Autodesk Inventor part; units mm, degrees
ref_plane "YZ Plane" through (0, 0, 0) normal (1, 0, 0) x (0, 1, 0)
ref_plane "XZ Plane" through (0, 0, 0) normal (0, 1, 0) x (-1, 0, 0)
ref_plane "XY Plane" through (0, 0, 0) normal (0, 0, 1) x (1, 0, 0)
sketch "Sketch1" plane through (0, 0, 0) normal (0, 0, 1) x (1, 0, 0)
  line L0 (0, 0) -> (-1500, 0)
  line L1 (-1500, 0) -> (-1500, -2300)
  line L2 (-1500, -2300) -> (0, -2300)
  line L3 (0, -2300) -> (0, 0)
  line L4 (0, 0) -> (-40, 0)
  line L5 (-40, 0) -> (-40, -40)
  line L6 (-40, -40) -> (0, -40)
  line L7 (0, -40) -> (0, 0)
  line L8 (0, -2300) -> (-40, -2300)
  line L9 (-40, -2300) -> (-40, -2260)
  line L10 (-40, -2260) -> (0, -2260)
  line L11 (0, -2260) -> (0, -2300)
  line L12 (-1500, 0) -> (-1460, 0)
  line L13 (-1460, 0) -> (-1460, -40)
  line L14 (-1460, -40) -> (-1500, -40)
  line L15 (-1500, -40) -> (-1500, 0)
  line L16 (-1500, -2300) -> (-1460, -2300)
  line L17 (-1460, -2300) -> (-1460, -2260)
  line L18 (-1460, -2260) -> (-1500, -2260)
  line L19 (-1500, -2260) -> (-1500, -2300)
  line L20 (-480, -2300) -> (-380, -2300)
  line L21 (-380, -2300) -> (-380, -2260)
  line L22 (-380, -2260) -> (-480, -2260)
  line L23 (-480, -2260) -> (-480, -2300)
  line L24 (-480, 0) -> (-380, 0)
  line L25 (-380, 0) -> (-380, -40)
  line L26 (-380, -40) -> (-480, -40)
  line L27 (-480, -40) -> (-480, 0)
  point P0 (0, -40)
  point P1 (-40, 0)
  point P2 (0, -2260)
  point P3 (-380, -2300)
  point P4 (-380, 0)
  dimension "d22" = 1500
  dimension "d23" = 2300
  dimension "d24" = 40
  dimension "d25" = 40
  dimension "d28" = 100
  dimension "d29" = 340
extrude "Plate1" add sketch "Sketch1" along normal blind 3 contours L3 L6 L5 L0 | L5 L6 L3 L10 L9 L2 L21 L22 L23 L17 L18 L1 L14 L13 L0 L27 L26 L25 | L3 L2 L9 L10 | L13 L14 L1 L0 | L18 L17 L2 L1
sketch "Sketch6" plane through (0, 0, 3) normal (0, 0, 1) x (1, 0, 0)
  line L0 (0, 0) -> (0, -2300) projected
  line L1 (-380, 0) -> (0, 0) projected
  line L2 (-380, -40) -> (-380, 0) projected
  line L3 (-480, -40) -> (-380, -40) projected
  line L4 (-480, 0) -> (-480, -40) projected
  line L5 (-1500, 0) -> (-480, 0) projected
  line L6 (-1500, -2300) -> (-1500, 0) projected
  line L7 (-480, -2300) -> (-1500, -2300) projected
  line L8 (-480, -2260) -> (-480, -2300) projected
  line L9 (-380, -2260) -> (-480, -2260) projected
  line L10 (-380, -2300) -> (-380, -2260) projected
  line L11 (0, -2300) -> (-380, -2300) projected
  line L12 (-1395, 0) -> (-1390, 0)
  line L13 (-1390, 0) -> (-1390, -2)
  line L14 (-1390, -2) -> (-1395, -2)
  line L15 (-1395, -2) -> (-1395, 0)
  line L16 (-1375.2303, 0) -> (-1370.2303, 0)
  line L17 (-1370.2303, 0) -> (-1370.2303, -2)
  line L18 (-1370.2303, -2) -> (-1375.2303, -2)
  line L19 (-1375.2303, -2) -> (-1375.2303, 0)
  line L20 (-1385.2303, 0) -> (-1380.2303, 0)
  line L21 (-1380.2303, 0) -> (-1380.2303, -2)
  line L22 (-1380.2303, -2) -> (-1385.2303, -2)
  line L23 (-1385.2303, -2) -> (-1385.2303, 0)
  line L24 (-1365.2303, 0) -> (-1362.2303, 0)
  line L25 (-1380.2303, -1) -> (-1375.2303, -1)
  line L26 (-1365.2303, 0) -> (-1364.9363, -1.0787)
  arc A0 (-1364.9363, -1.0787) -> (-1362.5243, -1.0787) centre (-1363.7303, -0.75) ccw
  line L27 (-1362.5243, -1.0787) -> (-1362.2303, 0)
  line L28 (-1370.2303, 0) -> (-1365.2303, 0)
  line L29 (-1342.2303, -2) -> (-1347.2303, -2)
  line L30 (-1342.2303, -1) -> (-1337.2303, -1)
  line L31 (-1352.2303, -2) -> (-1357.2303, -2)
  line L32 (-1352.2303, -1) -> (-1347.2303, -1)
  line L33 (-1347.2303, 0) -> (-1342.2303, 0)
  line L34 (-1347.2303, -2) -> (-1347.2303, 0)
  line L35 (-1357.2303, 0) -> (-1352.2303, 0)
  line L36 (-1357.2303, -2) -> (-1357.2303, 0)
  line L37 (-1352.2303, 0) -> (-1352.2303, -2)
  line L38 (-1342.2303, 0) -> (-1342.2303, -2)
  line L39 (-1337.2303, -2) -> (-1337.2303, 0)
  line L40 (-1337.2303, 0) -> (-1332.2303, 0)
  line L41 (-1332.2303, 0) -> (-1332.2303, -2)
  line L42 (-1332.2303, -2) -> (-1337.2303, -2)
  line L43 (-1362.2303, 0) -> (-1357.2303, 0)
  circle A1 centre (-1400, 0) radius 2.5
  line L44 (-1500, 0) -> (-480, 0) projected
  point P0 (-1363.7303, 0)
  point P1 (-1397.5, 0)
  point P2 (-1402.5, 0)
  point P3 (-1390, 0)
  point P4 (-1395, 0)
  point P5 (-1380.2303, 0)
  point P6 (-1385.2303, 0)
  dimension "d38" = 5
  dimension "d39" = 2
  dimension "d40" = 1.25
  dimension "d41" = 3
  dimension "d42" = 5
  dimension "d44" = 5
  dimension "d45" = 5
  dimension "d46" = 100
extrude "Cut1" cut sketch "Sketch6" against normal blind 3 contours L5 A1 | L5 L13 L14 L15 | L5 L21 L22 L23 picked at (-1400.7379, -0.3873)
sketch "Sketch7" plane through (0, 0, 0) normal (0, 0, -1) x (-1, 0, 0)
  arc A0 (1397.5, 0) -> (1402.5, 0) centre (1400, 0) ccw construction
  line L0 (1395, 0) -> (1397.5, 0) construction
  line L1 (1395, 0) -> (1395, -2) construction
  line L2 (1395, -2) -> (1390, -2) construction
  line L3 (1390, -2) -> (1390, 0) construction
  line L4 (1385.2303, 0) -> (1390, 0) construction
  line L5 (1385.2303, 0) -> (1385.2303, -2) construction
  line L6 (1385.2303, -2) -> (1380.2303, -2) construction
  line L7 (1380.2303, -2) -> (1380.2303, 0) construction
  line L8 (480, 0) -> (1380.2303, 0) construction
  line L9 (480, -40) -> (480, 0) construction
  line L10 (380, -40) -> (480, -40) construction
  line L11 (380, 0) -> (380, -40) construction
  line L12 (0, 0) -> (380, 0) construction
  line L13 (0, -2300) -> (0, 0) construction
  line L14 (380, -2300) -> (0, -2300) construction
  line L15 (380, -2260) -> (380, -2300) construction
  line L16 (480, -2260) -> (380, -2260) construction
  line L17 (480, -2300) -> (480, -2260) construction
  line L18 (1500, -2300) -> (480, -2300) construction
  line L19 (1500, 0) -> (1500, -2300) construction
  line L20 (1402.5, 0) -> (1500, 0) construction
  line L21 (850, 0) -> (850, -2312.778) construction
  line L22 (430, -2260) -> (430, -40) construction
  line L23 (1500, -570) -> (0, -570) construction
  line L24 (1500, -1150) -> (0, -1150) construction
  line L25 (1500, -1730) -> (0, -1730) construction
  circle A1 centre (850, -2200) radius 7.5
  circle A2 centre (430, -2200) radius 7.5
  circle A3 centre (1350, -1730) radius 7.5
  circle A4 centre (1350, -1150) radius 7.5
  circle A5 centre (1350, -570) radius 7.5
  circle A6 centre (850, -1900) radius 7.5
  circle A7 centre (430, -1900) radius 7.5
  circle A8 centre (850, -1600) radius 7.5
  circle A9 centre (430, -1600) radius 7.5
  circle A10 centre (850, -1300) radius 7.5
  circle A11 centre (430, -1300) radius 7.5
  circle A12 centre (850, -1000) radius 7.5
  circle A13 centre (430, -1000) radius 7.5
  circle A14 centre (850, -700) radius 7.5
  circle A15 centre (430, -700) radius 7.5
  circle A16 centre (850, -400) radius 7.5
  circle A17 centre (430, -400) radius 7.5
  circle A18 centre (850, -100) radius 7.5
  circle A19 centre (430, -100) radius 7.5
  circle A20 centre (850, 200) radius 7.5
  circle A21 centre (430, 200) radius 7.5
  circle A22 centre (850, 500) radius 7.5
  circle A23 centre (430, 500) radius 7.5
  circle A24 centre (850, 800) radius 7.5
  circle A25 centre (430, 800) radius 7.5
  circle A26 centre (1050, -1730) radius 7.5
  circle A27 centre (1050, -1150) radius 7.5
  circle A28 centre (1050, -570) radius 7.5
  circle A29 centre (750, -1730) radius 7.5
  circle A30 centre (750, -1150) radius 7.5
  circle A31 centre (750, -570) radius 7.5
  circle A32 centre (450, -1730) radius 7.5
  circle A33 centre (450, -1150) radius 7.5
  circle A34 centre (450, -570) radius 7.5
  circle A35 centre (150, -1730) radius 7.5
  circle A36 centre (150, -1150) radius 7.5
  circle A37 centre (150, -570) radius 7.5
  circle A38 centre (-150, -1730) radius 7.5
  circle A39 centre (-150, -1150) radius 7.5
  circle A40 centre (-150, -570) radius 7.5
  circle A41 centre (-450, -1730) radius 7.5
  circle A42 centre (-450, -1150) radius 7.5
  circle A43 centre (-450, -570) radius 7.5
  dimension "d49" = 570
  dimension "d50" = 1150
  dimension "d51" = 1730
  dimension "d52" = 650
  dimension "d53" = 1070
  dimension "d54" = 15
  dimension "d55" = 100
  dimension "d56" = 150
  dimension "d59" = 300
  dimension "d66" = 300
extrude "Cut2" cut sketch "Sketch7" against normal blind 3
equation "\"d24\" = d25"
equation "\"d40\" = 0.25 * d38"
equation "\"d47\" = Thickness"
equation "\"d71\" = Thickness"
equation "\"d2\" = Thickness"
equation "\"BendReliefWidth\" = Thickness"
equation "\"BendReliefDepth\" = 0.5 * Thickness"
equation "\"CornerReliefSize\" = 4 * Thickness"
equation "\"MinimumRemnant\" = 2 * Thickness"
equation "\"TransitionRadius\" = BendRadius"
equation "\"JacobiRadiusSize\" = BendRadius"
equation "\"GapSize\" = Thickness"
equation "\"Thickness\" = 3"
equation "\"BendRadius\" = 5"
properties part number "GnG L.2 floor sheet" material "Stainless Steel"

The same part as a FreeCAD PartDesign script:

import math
import FreeCAD as App
import Part
import Sketcher
from FreeCAD import Vector


def add_polygon(sketch, points):
    """Adds a closed chain of lines whose ends are joined by coincident constraints."""
    first, n = sketch.GeometryCount, len(points)
    for a, b in zip(points, points[1:] + points[:1]):
        sketch.addGeometry(Part.LineSegment(App.Vector(*a, 0), App.Vector(*b, 0)), False)
    for i in range(n):
        sketch.addConstraint(Sketcher.Constraint("Coincident", first + i, 2, first + (i + 1) % n, 1))

doc = App.newDocument("Part")
body = doc.addObject("PartDesign::Body", "Body")

# Sketch on XY plane
sketch1 = body.newObject("Sketcher::SketchObject", "Sketch")
sketch1.AttachmentSupport = (doc.getObject("XY_Plane"), [""])
sketch1.MapMode = "FlatFace"
add_polygon(sketch1, [(0, 0), (-380, 0), (-380, -40), (-480, -40), (-480, 0), (-1500, 0), (-1500, -2300), (-480, -2300), (-480, -2260), (-380, -2260), (-380, -2300), (0, -2300)])  # lines 0-11
sketch1.addConstraint([
    Sketcher.Constraint("Horizontal", 0),
    Sketcher.Constraint("Vertical", 1),
    Sketcher.Constraint("Horizontal", 2),
    Sketcher.Constraint("Vertical", 3),
    Sketcher.Constraint("Horizontal", 4),
    Sketcher.Constraint("Vertical", 5),
    Sketcher.Constraint("Horizontal", 6),
    Sketcher.Constraint("Vertical", 7),
    Sketcher.Constraint("Horizontal", 8),
    Sketcher.Constraint("Vertical", 9),
    Sketcher.Constraint("Horizontal", 10),
    Sketcher.Constraint("Vertical", 11),
    Sketcher.Constraint("Coincident", 11, 2, -1, 1),
    Sketcher.Constraint("PointOnObject", 3, 2, -1),
    Sketcher.Constraint("Horizontal", 6, 2, 9, 2),
    Sketcher.Constraint("Vertical", 3, 2, 6, 2),
    Sketcher.Constraint("Vertical", 1, 2, 8, 2),
    Sketcher.Constraint("Equal", 3, 7),
    Sketcher.Constraint("DistanceX", 2, 2, 2, 1, 100.0),
    Sketcher.Constraint("DistanceY", 1, 2, 1, 1, 40.0),
    Sketcher.Constraint("DistanceY", 5, 2, 5, 1, 2300.0),
    Sketcher.Constraint("DistanceX", 4, 2, -1, 1, 1500.0),
    Sketcher.Constraint("DistanceX", 0, 2, 0, 1, 380.0),
])
pad1 = body.newObject("PartDesign::Pad", "Pad")
pad1.Profile = sketch1
pad1.Length = 3

# Sketch on XY plane
sketch2 = body.newObject("Sketcher::SketchObject", "Sketch001")
sketch2.AttachmentSupport = (doc.getObject("XY_Plane"), [""])
sketch2.MapMode = "FlatFace"
sketch2.AttachmentOffset = App.Placement(Vector(0, 0, 3), App.Rotation())
sketch2.addGeometry(Part.LineSegment(Vector(-1397.5, 0, 0), Vector(-1402.5, 0, 0)), False)  # 0
sketch2.addGeometry(Part.ArcOfCircle(Part.Circle(Vector(-1400, 0, 0), Vector(0, 0, 1), 2.5), math.radians(180), math.radians(360)), False)  # 1
add_polygon(sketch2, [(-1390, 0), (-1395, 0), (-1395, -2), (-1390, -2)])  # lines 2-5
add_polygon(sketch2, [(-1380.2, 0), (-1385.2, 0), (-1385.2, -2), (-1380.2, -2)])  # lines 6-9
sketch2.addConstraint([
    Sketcher.Constraint("Coincident", 0, 1, 1, 2),
    Sketcher.Constraint("Coincident", 1, 1, 0, 2),
    Sketcher.Constraint("Horizontal", 0),
    Sketcher.Constraint("Horizontal", 2),
    Sketcher.Constraint("Vertical", 3),
    Sketcher.Constraint("Horizontal", 4),
    Sketcher.Constraint("Vertical", 5),
    Sketcher.Constraint("Horizontal", 6),
    Sketcher.Constraint("Vertical", 7),
    Sketcher.Constraint("Horizontal", 8),
    Sketcher.Constraint("Vertical", 9),
    Sketcher.Constraint("PointOnObject", 1, 3, -1),
    Sketcher.Constraint("PointOnObject", 0, 1, -1),
    Sketcher.Constraint("PointOnObject", 2, 2, -1),
    Sketcher.Constraint("PointOnObject", 6, 2, -1),
    Sketcher.Constraint("Horizontal", 4, 2, 7, 2),
    Sketcher.Constraint("Equal", 0, 2),
    Sketcher.Constraint("Equal", 4, 6),
    Sketcher.Constraint("Radius", 1, 2.5),
    Sketcher.Constraint("DistanceY", 3, 2, 3, 1, 2.0),
    Sketcher.Constraint("DistanceX", 1, 3, 2, 2, 5.0),
    Sketcher.Constraint("DistanceX", 1, 3, -1, 1, 1400.0),
    Sketcher.Constraint("DistanceX", 6, 2, -1, 1, 1385.2303),
])
pocket1 = body.newObject("PartDesign::Pocket", "Pocket")
pocket1.Profile = sketch2
pocket1.Length = 3

# Sketch on XY plane
sketch3 = body.newObject("Sketcher::SketchObject", "Sketch002")
sketch3.AttachmentSupport = (doc.getObject("XY_Plane"), [""])
sketch3.MapMode = "FlatFace"
sketch3.addGeometry([
    Part.Circle(Vector(-850, -2200, 0), Vector(0, 0, 1), 8),  # 0
    Part.Circle(Vector(-430, -2200, 0), Vector(0, 0, 1), 8),  # 1
    Part.Circle(Vector(-1350, -1730, 0), Vector(0, 0, 1), 8),  # 2
    Part.Circle(Vector(-1350, -1150, 0), Vector(0, 0, 1), 8),  # 3
    Part.Circle(Vector(-1350, -570, 0), Vector(0, 0, 1), 8),  # 4
    Part.Circle(Vector(-850, -1900, 0), Vector(0, 0, 1), 8),  # 5
    Part.Circle(Vector(-430, -1900, 0), Vector(0, 0, 1), 8),  # 6
    Part.Circle(Vector(-850, -1600, 0), Vector(0, 0, 1), 8),  # 7
    Part.Circle(Vector(-430, -1600, 0), Vector(0, 0, 1), 8),  # 8
    Part.Circle(Vector(-850, -1300, 0), Vector(0, 0, 1), 8),  # 9
    Part.Circle(Vector(-430, -1300, 0), Vector(0, 0, 1), 8),  # 10
    Part.Circle(Vector(-850, -1000, 0), Vector(0, 0, 1), 8),  # 11
    Part.Circle(Vector(-430, -1000, 0), Vector(0, 0, 1), 8),  # 12
    Part.Circle(Vector(-850, -700, 0), Vector(0, 0, 1), 8),  # 13
    Part.Circle(Vector(-430, -700, 0), Vector(0, 0, 1), 8),  # 14
    Part.Circle(Vector(-850, -400, 0), Vector(0, 0, 1), 8),  # 15
    Part.Circle(Vector(-430, -400, 0), Vector(0, 0, 1), 8),  # 16
    Part.Circle(Vector(-850, -100, 0), Vector(0, 0, 1), 8),  # 17
    Part.Circle(Vector(-430, -100, 0), Vector(0, 0, 1), 8),  # 18
    Part.Circle(Vector(-850, 200, 0), Vector(0, 0, 1), 8),  # 19
    Part.Circle(Vector(-430, 200, 0), Vector(0, 0, 1), 8),  # 20
    Part.Circle(Vector(-850, 500, 0), Vector(0, 0, 1), 8),  # 21
    Part.Circle(Vector(-430, 500, 0), Vector(0, 0, 1), 8),  # 22
    Part.Circle(Vector(-850, 800, 0), Vector(0, 0, 1), 8),  # 23
    Part.Circle(Vector(-430, 800, 0), Vector(0, 0, 1), 8),  # 24
    Part.Circle(Vector(-1050, -1730, 0), Vector(0, 0, 1), 8),  # 25
    Part.Circle(Vector(-1050, -1150, 0), Vector(0, 0, 1), 8),  # 26
    Part.Circle(Vector(-1050, -570, 0), Vector(0, 0, 1), 8),  # 27
    Part.Circle(Vector(-750, -1730, 0), Vector(0, 0, 1), 8),  # 28
    Part.Circle(Vector(-750, -1150, 0), Vector(0, 0, 1), 8),  # 29
    Part.Circle(Vector(-750, -570, 0), Vector(0, 0, 1), 8),  # 30
    Part.Circle(Vector(-450, -1730, 0), Vector(0, 0, 1), 8),  # 31
    Part.Circle(Vector(-450, -1150, 0), Vector(0, 0, 1), 8),  # 32
    Part.Circle(Vector(-450, -570, 0), Vector(0, 0, 1), 8),  # 33
    Part.Circle(Vector(-150, -1730, 0), Vector(0, 0, 1), 8),  # 34
    Part.Circle(Vector(-150, -1150, 0), Vector(0, 0, 1), 8),  # 35
    Part.Circle(Vector(-150, -570, 0), Vector(0, 0, 1), 8),  # 36
    Part.Circle(Vector(150, -1730, 0), Vector(0, 0, 1), 8),  # 37
    Part.Circle(Vector(150, -1150, 0), Vector(0, 0, 1), 8),  # 38
    Part.Circle(Vector(150, -570, 0), Vector(0, 0, 1), 8),  # 39
    Part.Circle(Vector(450, -1730, 0), Vector(0, 0, 1), 8),  # 40
    Part.Circle(Vector(450, -1150, 0), Vector(0, 0, 1), 8),  # 41
    Part.Circle(Vector(450, -570, 0), Vector(0, 0, 1), 8),  # 42
], False)
sketch3.addConstraint([
    Sketcher.Constraint("Equal", 0, 1),
    Sketcher.Constraint("Equal", 1, 2),
    Sketcher.Constraint("Equal", 2, 3),
    Sketcher.Constraint("Equal", 3, 4),
    Sketcher.Constraint("Equal", 4, 5),
    Sketcher.Constraint("Equal", 5, 6),
    Sketcher.Constraint("Equal", 6, 7),
    Sketcher.Constraint("Equal", 7, 8),
    Sketcher.Constraint("Equal", 8, 9),
    Sketcher.Constraint("Equal", 9, 10),
    Sketcher.Constraint("Equal", 10, 11),
    Sketcher.Constraint("Equal", 11, 12),
    Sketcher.Constraint("Equal", 12, 13),
    Sketcher.Constraint("Equal", 13, 14),
    Sketcher.Constraint("Equal", 14, 15),
    Sketcher.Constraint("Equal", 15, 16),
    Sketcher.Constraint("Equal", 16, 17),
    Sketcher.Constraint("Equal", 17, 18),
    Sketcher.Constraint("Equal", 18, 19),
    Sketcher.Constraint("Equal", 19, 20),
    Sketcher.Constraint("Equal", 20, 21),
    Sketcher.Constraint("Equal", 21, 22),
    Sketcher.Constraint("Equal", 22, 23),
    Sketcher.Constraint("Equal", 23, 24),
    Sketcher.Constraint("Equal", 24, 25),
    Sketcher.Constraint("Equal", 25, 26),
    Sketcher.Constraint("Equal", 26, 27),
    Sketcher.Constraint("Equal", 27, 28),
    Sketcher.Constraint("Equal", 28, 29),
    Sketcher.Constraint("Equal", 29, 30),
    Sketcher.Constraint("Equal", 30, 31),
    Sketcher.Constraint("Equal", 31, 32),
    Sketcher.Constraint("Equal", 32, 33),
    Sketcher.Constraint("Equal", 33, 34),
    Sketcher.Constraint("Equal", 34, 35),
    Sketcher.Constraint("Equal", 35, 36),
    Sketcher.Constraint("Equal", 36, 37),
    Sketcher.Constraint("Equal", 37, 38),
    Sketcher.Constraint("Equal", 38, 39),
    Sketcher.Constraint("Equal", 39, 40),
    Sketcher.Constraint("Equal", 40, 41),
    Sketcher.Constraint("Equal", 41, 42),
    Sketcher.Constraint("Symmetric", 34, 3, 37, 3, -2),
    Sketcher.Constraint("Symmetric", 35, 3, 38, 3, -2),
    Sketcher.Constraint("Symmetric", 36, 3, 39, 3, -2),
    Sketcher.Constraint("Symmetric", 31, 3, 40, 3, -2),
    Sketcher.Constraint("Symmetric", 32, 3, 41, 3, -2),
    Sketcher.Constraint("Symmetric", 33, 3, 42, 3, -2),
    Sketcher.Constraint("Horizontal", 0, 3, 1, 3),
    Sketcher.Constraint("Horizontal", 5, 3, 6, 3),
    Sketcher.Constraint("Horizontal", 7, 3, 8, 3),
    Sketcher.Constraint("Horizontal", 9, 3, 10, 3),
    Sketcher.Constraint("Horizontal", 11, 3, 12, 3),
    Sketcher.Constraint("Horizontal", 13, 3, 14, 3),
    Sketcher.Constraint("Horizontal", 15, 3, 16, 3),
    Sketcher.Constraint("Horizontal", 17, 3, 18, 3),
    Sketcher.Constraint("Horizontal", 19, 3, 20, 3),
    Sketcher.Constraint("Horizontal", 21, 3, 22, 3),
    Sketcher.Constraint("Horizontal", 23, 3, 24, 3),
    Sketcher.Constraint("Horizontal", 2, 3, 25, 3),
    Sketcher.Constraint("Horizontal", 3, 3, 26, 3),
    Sketcher.Constraint("Horizontal", 4, 3, 27, 3),
    Sketcher.Constraint("Horizontal", 25, 3, 28, 3),
    Sketcher.Constraint("Horizontal", 26, 3, 29, 3),
    Sketcher.Constraint("Horizontal", 27, 3, 30, 3),
    Sketcher.Constraint("Horizontal", 28, 3, 31, 3),
    Sketcher.Constraint("Horizontal", 29, 3, 32, 3),
    Sketcher.Constraint("Horizontal", 30, 3, 33, 3),
    Sketcher.Constraint("Horizontal", 31, 3, 34, 3),
    Sketcher.Constraint("Horizontal", 32, 3, 35, 3),
    Sketcher.Constraint("Horizontal", 33, 3, 36, 3),
    Sketcher.Constraint("Vertical", 2, 3, 3, 3),
    Sketcher.Constraint("Vertical", 3, 3, 4, 3),
    Sketcher.Constraint("Vertical", 0, 3, 5, 3),
    Sketcher.Constraint("Vertical", 1, 3, 6, 3),
    Sketcher.Constraint("Vertical", 5, 3, 7, 3),
    Sketcher.Constraint("Vertical", 6, 3, 8, 3),
    Sketcher.Constraint("Vertical", 7, 3, 9, 3),
    Sketcher.Constraint("Vertical", 8, 3, 10, 3),
    Sketcher.Constraint("Vertical", 9, 3, 11, 3),
    Sketcher.Constraint("Vertical", 10, 3, 12, 3),
    Sketcher.Constraint("Vertical", 11, 3, 13, 3),
    Sketcher.Constraint("Vertical", 12, 3, 14, 3),
    Sketcher.Constraint("Vertical", 13, 3, 15, 3),
    Sketcher.Constraint("Vertical", 14, 3, 16, 3),
    Sketcher.Constraint("Vertical", 15, 3, 17, 3),
    Sketcher.Constraint("Vertical", 16, 3, 18, 3),
    Sketcher.Constraint("Vertical", 17, 3, 19, 3),
    Sketcher.Constraint("Vertical", 18, 3, 20, 3),
    Sketcher.Constraint("Vertical", 19, 3, 21, 3),
    Sketcher.Constraint("Vertical", 20, 3, 22, 3),
    Sketcher.Constraint("Vertical", 21, 3, 23, 3),
    Sketcher.Constraint("Vertical", 22, 3, 24, 3),
    Sketcher.Constraint("Vertical", 25, 3, 26, 3),
    Sketcher.Constraint("Vertical", 26, 3, 27, 3),
    Sketcher.Constraint("Vertical", 28, 3, 29, 3),
    Sketcher.Constraint("Vertical", 29, 3, 30, 3),
    Sketcher.Constraint("Vertical", 31, 3, 32, 3),
    Sketcher.Constraint("Vertical", 32, 3, 33, 3),
    Sketcher.Constraint("Vertical", 34, 3, 35, 3),
    Sketcher.Constraint("Vertical", 35, 3, 36, 3),
    Sketcher.Constraint("Diameter", 0, 15.0),
    Sketcher.Constraint("DistanceY", 2, 3, -1, 1, 1730.0),
    Sketcher.Constraint("DistanceY", 3, 3, -1, 1, 1150.0),
    Sketcher.Constraint("DistanceY", 4, 3, -1, 1, 570.0),
    Sketcher.Constraint("DistanceY", 17, 3, -1, 1, 100.0),
    Sketcher.Constraint("DistanceX", 34, 3, -1, 1, 150.0),
    Sketcher.Constraint("DistanceY", 0, 3, 5, 3, 300.0),
    Sketcher.Constraint("DistanceY", 5, 3, 7, 3, 300.0),
    Sketcher.Constraint("DistanceY", 7, 3, 9, 3, 300.0),
    Sketcher.Constraint("DistanceY", 9, 3, 3, 3, 150.0),
    Sketcher.Constraint("DistanceY", 9, 3, 11, 3, 300.0),
    Sketcher.Constraint("DistanceY", 11, 3, 13, 3, 300.0),
    Sketcher.Constraint("DistanceY", 13, 3, 15, 3, 300.0),
    Sketcher.Constraint("DistanceY", 17, 3, 19, 3, 300.0),
    Sketcher.Constraint("DistanceY", 19, 3, 21, 3, 300.0),
    Sketcher.Constraint("DistanceY", 21, 3, 23, 3, 300.0),
    Sketcher.Constraint("DistanceX", 2, 3, 25, 3, 300.0),
    Sketcher.Constraint("DistanceX", 7, 3, 28, 3, 100.0),
    Sketcher.Constraint("DistanceX", 25, 3, 28, 3, 300.0),
    Sketcher.Constraint("DistanceX", 28, 3, 31, 3, 300.0),
    Sketcher.Constraint("DistanceX", 31, 3, 34, 3, 300.0),
    Sketcher.Constraint("DistanceX", 1, 3, -1, 1, 430.0),
])
pocket2 = body.newObject("PartDesign::Pocket", "Pocket001")
pocket2.Profile = sketch3
pocket2.Length = 3
pocket2.Reversed = True

doc.recompute()
